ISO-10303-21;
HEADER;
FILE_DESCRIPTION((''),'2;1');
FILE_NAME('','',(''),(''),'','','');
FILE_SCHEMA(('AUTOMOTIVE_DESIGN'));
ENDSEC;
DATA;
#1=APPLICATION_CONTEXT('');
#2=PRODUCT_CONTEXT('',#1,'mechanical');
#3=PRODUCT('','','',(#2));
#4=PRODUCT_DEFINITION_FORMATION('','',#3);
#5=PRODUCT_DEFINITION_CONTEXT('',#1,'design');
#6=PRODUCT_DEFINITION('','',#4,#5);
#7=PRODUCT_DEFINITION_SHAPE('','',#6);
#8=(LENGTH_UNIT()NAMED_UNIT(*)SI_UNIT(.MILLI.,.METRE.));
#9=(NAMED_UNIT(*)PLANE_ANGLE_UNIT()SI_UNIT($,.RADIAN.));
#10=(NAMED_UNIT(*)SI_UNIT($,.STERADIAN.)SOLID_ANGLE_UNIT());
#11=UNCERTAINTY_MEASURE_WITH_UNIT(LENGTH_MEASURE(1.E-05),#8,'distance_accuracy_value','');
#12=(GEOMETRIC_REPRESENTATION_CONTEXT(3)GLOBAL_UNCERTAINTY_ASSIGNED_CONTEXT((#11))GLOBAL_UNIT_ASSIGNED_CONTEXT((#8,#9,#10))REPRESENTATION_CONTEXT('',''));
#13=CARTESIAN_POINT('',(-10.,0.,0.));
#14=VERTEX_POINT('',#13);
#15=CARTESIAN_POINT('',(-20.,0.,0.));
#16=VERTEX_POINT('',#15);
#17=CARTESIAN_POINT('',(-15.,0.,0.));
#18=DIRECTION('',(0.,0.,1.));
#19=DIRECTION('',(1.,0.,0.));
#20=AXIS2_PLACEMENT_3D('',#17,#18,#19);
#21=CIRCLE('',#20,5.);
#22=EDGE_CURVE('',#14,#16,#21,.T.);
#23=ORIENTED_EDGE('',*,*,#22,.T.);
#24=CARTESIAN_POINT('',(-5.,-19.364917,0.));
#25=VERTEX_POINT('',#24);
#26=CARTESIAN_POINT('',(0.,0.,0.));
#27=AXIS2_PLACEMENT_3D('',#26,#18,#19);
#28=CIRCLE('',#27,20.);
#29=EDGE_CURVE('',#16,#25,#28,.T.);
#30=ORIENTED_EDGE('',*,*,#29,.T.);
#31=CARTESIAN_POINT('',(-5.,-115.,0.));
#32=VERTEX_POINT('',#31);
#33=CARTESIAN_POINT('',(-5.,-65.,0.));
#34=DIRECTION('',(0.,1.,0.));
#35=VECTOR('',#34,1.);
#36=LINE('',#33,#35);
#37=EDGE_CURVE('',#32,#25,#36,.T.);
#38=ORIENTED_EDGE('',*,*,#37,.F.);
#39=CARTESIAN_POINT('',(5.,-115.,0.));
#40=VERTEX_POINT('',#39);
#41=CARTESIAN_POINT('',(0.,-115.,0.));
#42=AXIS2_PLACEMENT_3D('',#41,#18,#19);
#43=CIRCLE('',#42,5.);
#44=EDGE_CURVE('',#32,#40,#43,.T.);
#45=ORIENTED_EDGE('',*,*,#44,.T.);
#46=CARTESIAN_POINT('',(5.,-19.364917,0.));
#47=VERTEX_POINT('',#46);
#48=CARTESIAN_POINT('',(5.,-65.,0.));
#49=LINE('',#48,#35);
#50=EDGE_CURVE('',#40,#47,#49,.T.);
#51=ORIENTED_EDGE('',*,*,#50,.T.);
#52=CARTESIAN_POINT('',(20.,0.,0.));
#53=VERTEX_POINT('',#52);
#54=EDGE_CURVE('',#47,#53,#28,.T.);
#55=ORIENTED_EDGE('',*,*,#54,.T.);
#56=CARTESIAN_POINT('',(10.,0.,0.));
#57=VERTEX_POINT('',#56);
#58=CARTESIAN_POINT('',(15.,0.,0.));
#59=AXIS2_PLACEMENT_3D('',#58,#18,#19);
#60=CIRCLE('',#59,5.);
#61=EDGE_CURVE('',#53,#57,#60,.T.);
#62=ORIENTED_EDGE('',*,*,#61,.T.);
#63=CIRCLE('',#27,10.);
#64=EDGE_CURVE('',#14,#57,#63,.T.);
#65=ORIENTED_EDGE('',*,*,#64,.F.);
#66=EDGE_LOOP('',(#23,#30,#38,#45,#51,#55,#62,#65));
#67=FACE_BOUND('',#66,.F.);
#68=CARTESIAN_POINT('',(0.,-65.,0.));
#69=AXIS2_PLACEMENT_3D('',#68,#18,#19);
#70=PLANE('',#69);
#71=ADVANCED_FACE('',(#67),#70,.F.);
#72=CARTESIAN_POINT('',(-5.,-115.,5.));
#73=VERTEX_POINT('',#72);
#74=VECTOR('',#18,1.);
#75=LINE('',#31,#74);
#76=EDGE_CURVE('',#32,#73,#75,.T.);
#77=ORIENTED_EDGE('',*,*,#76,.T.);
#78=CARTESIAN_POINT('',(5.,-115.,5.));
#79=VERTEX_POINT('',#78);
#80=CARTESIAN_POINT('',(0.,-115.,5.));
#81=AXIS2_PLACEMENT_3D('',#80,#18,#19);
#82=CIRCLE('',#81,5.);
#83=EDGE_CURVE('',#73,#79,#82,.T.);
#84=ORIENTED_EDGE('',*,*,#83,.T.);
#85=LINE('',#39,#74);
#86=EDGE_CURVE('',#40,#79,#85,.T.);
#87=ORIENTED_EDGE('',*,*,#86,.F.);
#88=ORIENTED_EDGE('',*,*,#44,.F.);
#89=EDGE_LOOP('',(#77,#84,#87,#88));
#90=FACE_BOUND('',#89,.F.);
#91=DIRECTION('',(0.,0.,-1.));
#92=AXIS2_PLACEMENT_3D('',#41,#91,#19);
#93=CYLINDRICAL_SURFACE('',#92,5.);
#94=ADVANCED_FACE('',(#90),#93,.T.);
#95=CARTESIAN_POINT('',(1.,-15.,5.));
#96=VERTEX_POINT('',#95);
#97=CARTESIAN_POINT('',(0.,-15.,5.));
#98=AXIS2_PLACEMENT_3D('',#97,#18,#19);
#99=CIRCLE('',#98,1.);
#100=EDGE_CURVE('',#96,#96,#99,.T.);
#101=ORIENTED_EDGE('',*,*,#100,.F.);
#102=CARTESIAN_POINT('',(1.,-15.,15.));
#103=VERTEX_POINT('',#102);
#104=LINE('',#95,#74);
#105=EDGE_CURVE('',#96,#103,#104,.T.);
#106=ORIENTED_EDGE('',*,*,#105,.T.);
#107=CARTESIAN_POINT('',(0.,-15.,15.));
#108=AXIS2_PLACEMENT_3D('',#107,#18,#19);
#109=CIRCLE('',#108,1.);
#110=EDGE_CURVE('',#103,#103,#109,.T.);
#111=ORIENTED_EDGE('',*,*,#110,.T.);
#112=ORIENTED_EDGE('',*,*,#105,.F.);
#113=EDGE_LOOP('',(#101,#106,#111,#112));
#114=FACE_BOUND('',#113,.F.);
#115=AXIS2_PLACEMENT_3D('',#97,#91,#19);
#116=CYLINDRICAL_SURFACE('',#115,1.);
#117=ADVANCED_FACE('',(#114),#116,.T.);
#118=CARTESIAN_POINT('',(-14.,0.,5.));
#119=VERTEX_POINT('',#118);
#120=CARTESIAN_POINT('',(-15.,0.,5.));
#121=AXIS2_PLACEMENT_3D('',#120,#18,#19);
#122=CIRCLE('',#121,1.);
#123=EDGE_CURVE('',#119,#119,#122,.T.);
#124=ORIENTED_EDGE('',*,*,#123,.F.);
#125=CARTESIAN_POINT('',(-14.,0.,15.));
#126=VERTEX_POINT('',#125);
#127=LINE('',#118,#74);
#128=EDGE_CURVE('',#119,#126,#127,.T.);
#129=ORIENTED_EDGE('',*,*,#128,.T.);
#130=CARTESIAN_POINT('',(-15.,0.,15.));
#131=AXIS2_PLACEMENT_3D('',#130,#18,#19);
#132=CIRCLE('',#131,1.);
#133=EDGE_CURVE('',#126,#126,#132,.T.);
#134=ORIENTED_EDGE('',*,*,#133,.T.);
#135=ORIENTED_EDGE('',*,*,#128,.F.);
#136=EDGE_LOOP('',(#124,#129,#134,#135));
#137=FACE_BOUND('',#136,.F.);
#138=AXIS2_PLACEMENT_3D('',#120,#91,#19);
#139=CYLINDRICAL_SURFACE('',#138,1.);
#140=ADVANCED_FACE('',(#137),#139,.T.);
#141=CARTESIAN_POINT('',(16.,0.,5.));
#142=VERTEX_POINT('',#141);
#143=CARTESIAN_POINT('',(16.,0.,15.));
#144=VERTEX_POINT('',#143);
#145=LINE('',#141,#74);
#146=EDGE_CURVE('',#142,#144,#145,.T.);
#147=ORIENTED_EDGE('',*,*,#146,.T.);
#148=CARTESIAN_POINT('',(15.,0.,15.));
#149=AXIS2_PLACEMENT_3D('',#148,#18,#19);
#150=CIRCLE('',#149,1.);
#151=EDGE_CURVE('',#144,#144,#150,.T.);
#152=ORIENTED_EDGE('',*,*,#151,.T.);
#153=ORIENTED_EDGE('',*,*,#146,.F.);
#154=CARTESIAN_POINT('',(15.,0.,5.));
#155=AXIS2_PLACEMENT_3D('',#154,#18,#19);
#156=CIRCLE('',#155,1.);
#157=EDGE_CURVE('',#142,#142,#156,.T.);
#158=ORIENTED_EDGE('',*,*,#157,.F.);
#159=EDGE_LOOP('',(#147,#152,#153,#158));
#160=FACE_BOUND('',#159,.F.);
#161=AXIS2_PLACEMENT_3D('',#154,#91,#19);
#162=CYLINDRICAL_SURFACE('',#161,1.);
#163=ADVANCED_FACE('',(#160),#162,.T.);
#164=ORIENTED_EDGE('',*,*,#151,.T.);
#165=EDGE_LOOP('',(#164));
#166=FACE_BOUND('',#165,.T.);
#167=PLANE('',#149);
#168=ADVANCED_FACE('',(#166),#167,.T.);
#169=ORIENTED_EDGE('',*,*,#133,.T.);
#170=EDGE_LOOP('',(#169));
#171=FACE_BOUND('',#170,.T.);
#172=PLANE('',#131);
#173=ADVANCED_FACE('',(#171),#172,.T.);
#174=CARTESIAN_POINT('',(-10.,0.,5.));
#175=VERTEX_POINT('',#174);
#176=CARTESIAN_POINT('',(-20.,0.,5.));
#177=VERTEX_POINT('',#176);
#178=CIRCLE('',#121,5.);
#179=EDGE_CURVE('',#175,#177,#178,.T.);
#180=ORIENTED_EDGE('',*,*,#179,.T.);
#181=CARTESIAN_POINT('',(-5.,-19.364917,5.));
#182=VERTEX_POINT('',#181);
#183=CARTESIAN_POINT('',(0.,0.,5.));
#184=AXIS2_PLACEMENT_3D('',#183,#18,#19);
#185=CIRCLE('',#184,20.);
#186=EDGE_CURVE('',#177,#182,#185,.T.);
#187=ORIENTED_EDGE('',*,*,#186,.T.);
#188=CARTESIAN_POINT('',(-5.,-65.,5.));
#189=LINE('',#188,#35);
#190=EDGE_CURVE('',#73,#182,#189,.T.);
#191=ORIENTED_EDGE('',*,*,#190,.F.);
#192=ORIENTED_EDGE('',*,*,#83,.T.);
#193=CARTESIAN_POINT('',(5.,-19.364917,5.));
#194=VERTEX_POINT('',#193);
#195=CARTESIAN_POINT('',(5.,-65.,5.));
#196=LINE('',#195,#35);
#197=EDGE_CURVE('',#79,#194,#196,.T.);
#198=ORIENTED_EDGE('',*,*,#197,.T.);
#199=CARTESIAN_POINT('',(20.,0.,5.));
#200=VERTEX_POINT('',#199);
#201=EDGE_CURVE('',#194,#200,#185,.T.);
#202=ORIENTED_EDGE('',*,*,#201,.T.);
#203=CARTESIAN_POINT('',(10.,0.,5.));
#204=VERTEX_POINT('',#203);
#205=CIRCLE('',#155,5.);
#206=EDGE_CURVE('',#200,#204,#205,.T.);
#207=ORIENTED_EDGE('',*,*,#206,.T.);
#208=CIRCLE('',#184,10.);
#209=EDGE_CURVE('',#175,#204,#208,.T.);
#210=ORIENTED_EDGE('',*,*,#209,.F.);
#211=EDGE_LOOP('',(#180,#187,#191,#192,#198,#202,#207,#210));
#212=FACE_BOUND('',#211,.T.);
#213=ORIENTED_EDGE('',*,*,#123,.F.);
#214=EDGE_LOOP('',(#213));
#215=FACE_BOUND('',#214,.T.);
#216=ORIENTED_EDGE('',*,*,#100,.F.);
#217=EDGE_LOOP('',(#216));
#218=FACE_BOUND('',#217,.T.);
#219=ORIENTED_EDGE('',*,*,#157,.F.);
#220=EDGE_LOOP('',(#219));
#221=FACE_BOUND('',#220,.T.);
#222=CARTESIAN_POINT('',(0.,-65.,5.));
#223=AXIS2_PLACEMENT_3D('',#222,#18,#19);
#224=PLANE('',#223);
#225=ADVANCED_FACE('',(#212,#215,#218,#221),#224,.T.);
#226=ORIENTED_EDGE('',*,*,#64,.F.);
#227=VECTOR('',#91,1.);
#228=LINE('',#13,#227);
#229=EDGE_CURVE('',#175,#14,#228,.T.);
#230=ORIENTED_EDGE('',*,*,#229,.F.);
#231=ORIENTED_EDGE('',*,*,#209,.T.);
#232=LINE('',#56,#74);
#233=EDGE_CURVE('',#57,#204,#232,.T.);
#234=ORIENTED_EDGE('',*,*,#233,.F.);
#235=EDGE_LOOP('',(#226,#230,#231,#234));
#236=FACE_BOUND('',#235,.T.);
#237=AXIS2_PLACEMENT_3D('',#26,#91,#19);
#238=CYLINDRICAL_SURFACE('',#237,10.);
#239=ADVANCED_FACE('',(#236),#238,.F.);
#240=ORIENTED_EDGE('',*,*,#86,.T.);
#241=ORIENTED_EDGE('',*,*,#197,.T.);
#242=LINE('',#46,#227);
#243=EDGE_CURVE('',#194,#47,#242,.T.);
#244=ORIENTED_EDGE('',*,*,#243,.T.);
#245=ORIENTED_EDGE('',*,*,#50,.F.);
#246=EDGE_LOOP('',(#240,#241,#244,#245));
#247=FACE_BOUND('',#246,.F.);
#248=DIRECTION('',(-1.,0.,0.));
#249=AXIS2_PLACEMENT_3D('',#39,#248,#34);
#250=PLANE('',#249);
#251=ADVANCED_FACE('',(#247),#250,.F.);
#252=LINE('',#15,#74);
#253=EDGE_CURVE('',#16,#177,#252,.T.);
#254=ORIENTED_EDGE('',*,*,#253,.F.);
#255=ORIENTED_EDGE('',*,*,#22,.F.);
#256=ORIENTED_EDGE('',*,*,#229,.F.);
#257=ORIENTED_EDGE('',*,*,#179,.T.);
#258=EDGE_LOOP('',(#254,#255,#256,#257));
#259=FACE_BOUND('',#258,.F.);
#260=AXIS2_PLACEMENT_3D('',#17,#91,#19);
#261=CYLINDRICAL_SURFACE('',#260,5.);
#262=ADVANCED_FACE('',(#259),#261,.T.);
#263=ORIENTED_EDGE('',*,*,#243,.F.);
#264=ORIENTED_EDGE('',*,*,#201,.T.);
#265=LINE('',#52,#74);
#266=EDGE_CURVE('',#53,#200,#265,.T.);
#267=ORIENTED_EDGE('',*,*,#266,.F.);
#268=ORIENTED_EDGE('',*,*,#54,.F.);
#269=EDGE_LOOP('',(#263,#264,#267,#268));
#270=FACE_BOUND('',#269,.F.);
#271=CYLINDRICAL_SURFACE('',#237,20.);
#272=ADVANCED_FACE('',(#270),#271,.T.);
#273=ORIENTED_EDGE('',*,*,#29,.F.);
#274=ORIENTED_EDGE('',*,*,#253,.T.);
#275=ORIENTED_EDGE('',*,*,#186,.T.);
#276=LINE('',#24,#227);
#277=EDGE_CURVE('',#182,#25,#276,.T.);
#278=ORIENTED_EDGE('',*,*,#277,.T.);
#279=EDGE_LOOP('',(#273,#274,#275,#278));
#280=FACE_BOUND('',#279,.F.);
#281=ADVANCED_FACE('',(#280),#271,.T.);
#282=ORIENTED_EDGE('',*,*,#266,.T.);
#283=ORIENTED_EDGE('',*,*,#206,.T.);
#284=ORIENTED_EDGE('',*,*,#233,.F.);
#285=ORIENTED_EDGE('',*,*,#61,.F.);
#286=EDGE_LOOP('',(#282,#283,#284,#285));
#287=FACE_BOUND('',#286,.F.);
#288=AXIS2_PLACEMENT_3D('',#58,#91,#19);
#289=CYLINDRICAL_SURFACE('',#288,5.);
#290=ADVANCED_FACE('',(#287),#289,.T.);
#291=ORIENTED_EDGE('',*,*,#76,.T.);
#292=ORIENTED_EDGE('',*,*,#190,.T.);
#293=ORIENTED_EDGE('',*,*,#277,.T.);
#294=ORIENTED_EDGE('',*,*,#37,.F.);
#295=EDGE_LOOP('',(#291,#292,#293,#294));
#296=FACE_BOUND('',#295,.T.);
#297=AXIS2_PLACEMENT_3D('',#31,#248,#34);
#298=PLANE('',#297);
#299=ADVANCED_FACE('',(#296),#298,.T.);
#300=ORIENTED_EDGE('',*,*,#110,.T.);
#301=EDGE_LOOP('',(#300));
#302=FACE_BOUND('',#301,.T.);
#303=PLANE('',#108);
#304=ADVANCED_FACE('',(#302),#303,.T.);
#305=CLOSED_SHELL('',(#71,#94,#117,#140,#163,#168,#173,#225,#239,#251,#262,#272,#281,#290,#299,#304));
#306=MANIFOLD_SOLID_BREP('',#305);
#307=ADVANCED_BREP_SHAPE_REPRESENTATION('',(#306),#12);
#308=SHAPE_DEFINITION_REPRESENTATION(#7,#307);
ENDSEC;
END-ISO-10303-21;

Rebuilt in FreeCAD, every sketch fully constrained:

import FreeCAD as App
import Part
import Sketcher
from FreeCAD import Vector
Q = App.Units.Quantity

doc = App.newDocument("Part")
body = doc.addObject("PartDesign::Body", "Body")

# Sketch on XY plane
sketch1 = body.newObject("Sketcher::SketchObject", "Sketch")
sketch1.AttachmentSupport = (doc.getObject("XY_Plane"), [""])
sketch1.MapMode = "FlatFace"
sketch1.addGeometry([
    Part.LineSegment(Vector(-5, -15, 0), Vector(-5, -115, 0)),
    Part.LineSegment(Vector(-5, -115, 0), Vector(5, -115, 0)),
    Part.LineSegment(Vector(5, -115, 0), Vector(5, -15, 0)),
    Part.LineSegment(Vector(5, -15, 0), Vector(-5, -15, 0)),
], False)
sketch1.addConstraint([
    Sketcher.Constraint("Coincident", 0, 2, 1, 1),
    Sketcher.Constraint("Coincident", 1, 2, 2, 1),
    Sketcher.Constraint("Coincident", 2, 2, 3, 1),
    Sketcher.Constraint("Coincident", 3, 2, 0, 1),
    Sketcher.Constraint("Vertical", 0),
    Sketcher.Constraint("Horizontal", 1),
    Sketcher.Constraint("Vertical", 2),
    Sketcher.Constraint("Horizontal", 3),
    Sketcher.Constraint("DistanceX", 1, 1, 1, 2, Q("10 mm")),
    Sketcher.Constraint("DistanceY", 0, 2, 0, 1, Q("100 mm")),
    Sketcher.Constraint("DistanceX", 0, 2, -1, 1, Q("5 mm")),
    Sketcher.Constraint("DistanceY", 0, 2, -1, 1, Q("115 mm")),
])
pad1 = body.newObject("PartDesign::Pad", "Pad")
pad1.Profile = sketch1
pad1.Length = 5
body2 = doc.addObject("PartDesign::Body", "Body001")

# Sketch on XY plane
sketch2 = body2.newObject("Sketcher::SketchObject", "Sketch001")
sketch2.AttachmentSupport = (doc.getObject("XY_Plane001"), [""])
sketch2.MapMode = "FlatFace"
sketch2.AttachmentOffset = App.Placement(Vector(0, 0, 5), App.Rotation())
sketch2.addGeometry(Part.Circle(Vector(0, -15, 0), Vector(0, 0, 1), 1), False)
sketch2.addConstraint([
    Sketcher.Constraint("PointOnObject", 0, 3, -2),
    Sketcher.Constraint("Diameter", 0, Q("2 mm")),
    Sketcher.Constraint("DistanceY", 0, 3, -1, 1, Q("15 mm")),
])
pad2 = body2.newObject("PartDesign::Pad", "Pad001")
pad2.Profile = sketch2
pad2.Length = 10
body3 = doc.addObject("PartDesign::Body", "Body002")

# Sketch on XY plane
sketch3 = body3.newObject("Sketcher::SketchObject", "Sketch002")
sketch3.AttachmentSupport = (doc.getObject("XY_Plane002"), [""])
sketch3.MapMode = "FlatFace"
sketch3.AttachmentOffset = App.Placement(Vector(0, 0, 5), App.Rotation())
sketch3.addGeometry(Part.Circle(Vector(15, 0, 0), Vector(0, 0, 1), 1), False)
sketch3.addConstraint([
    Sketcher.Constraint("PointOnObject", 0, 3, -1),
    Sketcher.Constraint("Diameter", 0, Q("2 mm")),
    Sketcher.Constraint("DistanceX", -1, 1, 0, 3, Q("15 mm")),
])
pad3 = body3.newObject("PartDesign::Pad", "Pad002")
pad3.Profile = sketch3
pad3.Length = 10
body4 = doc.addObject("PartDesign::Body", "Body003")

# Sketch on XY plane
sketch4 = body4.newObject("Sketcher::SketchObject", "Sketch003")
sketch4.AttachmentSupport = (doc.getObject("XY_Plane003"), [""])
sketch4.MapMode = "FlatFace"
sketch4.AttachmentOffset = App.Placement(Vector(0, 0, 5), App.Rotation())
sketch4.addGeometry(Part.Circle(Vector(-15, 0, 0), Vector(0, 0, 1), 1), False)
sketch4.addConstraint([
    Sketcher.Constraint("PointOnObject", 0, 3, -1),
    Sketcher.Constraint("Diameter", 0, Q("2 mm")),
    Sketcher.Constraint("DistanceX", 0, 3, -1, 1, Q("15 mm")),
])
pad4 = body4.newObject("PartDesign::Pad", "Pad003")
pad4.Profile = sketch4
pad4.Length = 10
body5 = doc.addObject("PartDesign::Body", "Body004")

# Sketch on XY plane
sketch5 = body5.newObject("Sketcher::SketchObject", "Sketch004")
sketch5.AttachmentSupport = (doc.getObject("XY_Plane004"), [""])
sketch5.MapMode = "FlatFace"
sketch5.addGeometry(Part.Circle(Vector(0, -115, 0), Vector(0, 0, 1), 5), False)
sketch5.addConstraint([
    Sketcher.Constraint("PointOnObject", 0, 3, -2),
    Sketcher.Constraint("Diameter", 0, Q("10 mm")),
    Sketcher.Constraint("DistanceY", 0, 3, -1, 1, Q("115 mm")),
])
pad5 = body5.newObject("PartDesign::Pad", "Pad004")
pad5.Profile = sketch5
pad5.Length = 5
body6 = doc.addObject("PartDesign::Body", "Body005")

# Sketch on XY plane
sketch6 = body6.newObject("Sketcher::SketchObject", "Sketch005")
sketch6.AttachmentSupport = (doc.getObject("XY_Plane005"), [""])
sketch6.MapMode = "FlatFace"
sketch6.addGeometry(Part.Circle(Vector(15, 0, 0), Vector(0, 0, 1), 5), False)
sketch6.addConstraint([
    Sketcher.Constraint("PointOnObject", 0, 3, -1),
    Sketcher.Constraint("Diameter", 0, Q("10 mm")),
    Sketcher.Constraint("DistanceX", -1, 1, 0, 3, Q("15 mm")),
])
pad6 = body6.newObject("PartDesign::Pad", "Pad005")
pad6.Profile = sketch6
pad6.Length = 5
body7 = doc.addObject("PartDesign::Body", "Body006")

# Sketch on XY plane
sketch7 = body7.newObject("Sketcher::SketchObject", "Sketch006")
sketch7.AttachmentSupport = (doc.getObject("XY_Plane006"), [""])
sketch7.MapMode = "FlatFace"
sketch7.addGeometry(Part.Circle(Vector(-15, 0, 0), Vector(0, 0, 1), 5), False)
sketch7.addConstraint([
    Sketcher.Constraint("PointOnObject", 0, 3, -1),
    Sketcher.Constraint("Diameter", 0, Q("10 mm")),
    Sketcher.Constraint("DistanceX", 0, 3, -1, 1, Q("15 mm")),
])
pad7 = body7.newObject("PartDesign::Pad", "Pad006")
pad7.Profile = sketch7
pad7.Length = 5
body8 = doc.addObject("PartDesign::Body", "Body007")

# Sketch on XY plane
sketch8 = body8.newObject("Sketcher::SketchObject", "Sketch007")
sketch8.AttachmentSupport = (doc.getObject("XY_Plane007"), [""])
sketch8.MapMode = "FlatFace"
sketch8.addGeometry([
    Part.LineSegment(Vector(-20, 35, 0), Vector(-20, 0, 0)),
    Part.LineSegment(Vector(-20, 0, 0), Vector(20, 0, 0)),
    Part.LineSegment(Vector(20, 0, 0), Vector(20, 35, 0)),
    Part.LineSegment(Vector(20, 35, 0), Vector(-20, 35, 0)),
], False)
sketch8.addConstraint([
    Sketcher.Constraint("Coincident", 0, 2, 1, 1),
    Sketcher.Constraint("Coincident", 1, 2, 2, 1),
    Sketcher.Constraint("Coincident", 2, 2, 3, 1),
    Sketcher.Constraint("Coincident", 3, 2, 0, 1),
    Sketcher.Constraint("Vertical", 0),
    Sketcher.Constraint("Horizontal", 1),
    Sketcher.Constraint("Vertical", 2),
    Sketcher.Constraint("Horizontal", 3),
    Sketcher.Constraint("Symmetric", 0, 2, 1, 2, -1, 1),
    Sketcher.Constraint("DistanceX", 1, 1, 1, 2, Q("40 mm")),
    Sketcher.Constraint("DistanceY", 0, 2, 0, 1, Q("35 mm")),
])
pad8 = body8.newObject("PartDesign::Pad", "Pad007")
pad8.Profile = sketch8
pad8.Length = 5
body9 = doc.addObject("PartDesign::Body", "Body008")

# Sketch on XY plane
sketch9 = body9.newObject("Sketcher::SketchObject", "Sketch008")
sketch9.AttachmentSupport = (doc.getObject("XY_Plane008"), [""])
sketch9.MapMode = "FlatFace"
sketch9.addGeometry(Part.Circle(Vector(0, 0, 0), Vector(0, 0, 1), 10), False)
sketch9.addConstraint([
    Sketcher.Constraint("Coincident", 0, 3, -1, 1),
    Sketcher.Constraint("Diameter", 0, Q("20 mm")),
])
pad9 = body9.newObject("PartDesign::Pad", "Pad008")
pad9.Profile = sketch9
pad9.Length = 5
body10 = doc.addObject("PartDesign::Body", "Body009")

# Sketch on XY plane
sketch10 = body10.newObject("Sketcher::SketchObject", "Sketch009")
sketch10.AttachmentSupport = (doc.getObject("XY_Plane009"), [""])
sketch10.MapMode = "FlatFace"
sketch10.addGeometry(Part.Circle(Vector(0, 0, 0), Vector(0, 0, 1), 20), False)
sketch10.addConstraint([
    Sketcher.Constraint("Coincident", 0, 3, -1, 1),
    Sketcher.Constraint("Diameter", 0, Q("40 mm")),
])
pad10 = body10.newObject("PartDesign::Pad", "Pad009")
pad10.Profile = sketch10
pad10.Length = 5
doc.recompute()

boolean = body10.newObject("PartDesign::Boolean", "Boolean")
boolean.Type = "Cut"
boolean.addObjects([body9])
doc.recompute()

boolean2 = body10.newObject("PartDesign::Boolean", "Boolean001")
boolean2.Type = "Cut"
boolean2.addObjects([body8])
doc.recompute()

boolean3 = body10.newObject("PartDesign::Boolean", "Boolean002")
boolean3.Type = "Fuse"
boolean3.addObjects([body6])
doc.recompute()

boolean4 = body10.newObject("PartDesign::Boolean", "Boolean003")
boolean4.Type = "Fuse"
boolean4.addObjects([body7])
doc.recompute()

boolean5 = body10.newObject("PartDesign::Boolean", "Boolean004")
boolean5.Type = "Fuse"
boolean5.addObjects([body])
doc.recompute()

boolean6 = body10.newObject("PartDesign::Boolean", "Boolean005")
boolean6.Type = "Fuse"
boolean6.addObjects([body2])
doc.recompute()

boolean7 = body10.newObject("PartDesign::Boolean", "Boolean006")
boolean7.Type = "Fuse"
boolean7.addObjects([body3])
doc.recompute()

boolean8 = body10.newObject("PartDesign::Boolean", "Boolean007")
boolean8.Type = "Fuse"
boolean8.addObjects([body4])
doc.recompute()

boolean9 = body10.newObject("PartDesign::Boolean", "Boolean008")
boolean9.Type = "Fuse"
boolean9.addObjects([body5])

doc.recompute()
